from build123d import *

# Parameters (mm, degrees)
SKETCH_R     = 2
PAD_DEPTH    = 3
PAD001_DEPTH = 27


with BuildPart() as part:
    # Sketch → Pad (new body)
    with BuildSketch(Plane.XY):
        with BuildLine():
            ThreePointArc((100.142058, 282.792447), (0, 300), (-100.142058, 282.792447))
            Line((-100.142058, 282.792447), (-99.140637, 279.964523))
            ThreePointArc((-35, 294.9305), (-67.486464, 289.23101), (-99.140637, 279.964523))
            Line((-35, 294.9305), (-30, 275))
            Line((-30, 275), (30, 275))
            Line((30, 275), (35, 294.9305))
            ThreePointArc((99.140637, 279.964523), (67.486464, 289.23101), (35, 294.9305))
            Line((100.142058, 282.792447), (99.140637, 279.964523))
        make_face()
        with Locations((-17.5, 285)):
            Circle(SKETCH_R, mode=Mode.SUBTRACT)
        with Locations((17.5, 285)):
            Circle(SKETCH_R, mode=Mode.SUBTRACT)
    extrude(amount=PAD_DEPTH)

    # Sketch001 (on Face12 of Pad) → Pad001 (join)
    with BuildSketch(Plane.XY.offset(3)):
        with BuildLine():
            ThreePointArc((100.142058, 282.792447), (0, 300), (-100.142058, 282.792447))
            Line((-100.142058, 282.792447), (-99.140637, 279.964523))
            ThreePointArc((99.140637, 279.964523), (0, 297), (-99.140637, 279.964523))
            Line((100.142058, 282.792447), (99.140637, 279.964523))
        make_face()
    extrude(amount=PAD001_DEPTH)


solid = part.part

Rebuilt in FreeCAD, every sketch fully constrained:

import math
import FreeCAD as App
import Part
import Sketcher
Q = App.Units.Quantity

doc = App.newDocument("Part")
body = doc.addObject("PartDesign::Body", "Body")

sketch1 = body.newObject("Sketcher::SketchObject", "Sketch")
sketch1.AttachmentSupport = (doc.getObject("XY_Plane"), [""])
sketch1.MapMode = "FlatFace"
sketch1.addGeometry([
    Part.ArcOfCircle(Part.Circle(App.Vector(0, 0, 0), App.Vector(0, 0, 1), 300), math.radians(70), math.radians(110)),
    Part.LineSegment(App.Vector(-100.1, 282.8, 0), App.Vector(-99.1, 280, 0)),
    Part.ArcOfCircle(Part.Circle(App.Vector(0, 0, 0), App.Vector(0, 0, 1), 297), math.radians(96.77), math.radians(109.5)),
    Part.LineSegment(App.Vector(-35, 294.9, 0), App.Vector(-30, 275, 0)),
    Part.LineSegment(App.Vector(-30, 275, 0), App.Vector(30, 275, 0)),
    Part.LineSegment(App.Vector(30, 275, 0), App.Vector(35, 294.9, 0)),
    Part.ArcOfCircle(Part.Circle(App.Vector(0, 0, 0), App.Vector(0, 0, 1), 297), math.radians(70.5), math.radians(83.23)),
    Part.LineSegment(App.Vector(99.1, 280, 0), App.Vector(100.1, 282.8, 0)),
    Part.Circle(App.Vector(-17.5, 285, 0), App.Vector(0, 0, 1), 2),
    Part.Circle(App.Vector(17.5, 285, 0), App.Vector(0, 0, 1), 2),
], False)
sketch1.addConstraint([
    Sketcher.Constraint("Coincident", 0, 2, 1, 1),
    Sketcher.Constraint("Coincident", 1, 2, 2, 2),
    Sketcher.Constraint("Coincident", 2, 1, 3, 1),
    Sketcher.Constraint("Coincident", 3, 2, 4, 1),
    Sketcher.Constraint("Coincident", 4, 2, 5, 1),
    Sketcher.Constraint("Coincident", 5, 2, 6, 2),
    Sketcher.Constraint("Coincident", 6, 1, 7, 1),
    Sketcher.Constraint("Coincident", 7, 2, 0, 1),
    Sketcher.Constraint("Horizontal", 4),
    Sketcher.Constraint("Coincident", 0, 3, -1, 1),
    Sketcher.Constraint("Coincident", 2, 3, -1, 1),
    Sketcher.Constraint("Coincident", 6, 3, -1, 1),
    Sketcher.Constraint("Equal", 2, 6),
    Sketcher.Constraint("Equal", 8, 9),
    Sketcher.Constraint("Symmetric", 8, 3, 9, 3, -2),
    Sketcher.Constraint("Horizontal", 2, 1, 5, 2),
    Sketcher.Constraint("Horizontal", 1, 2, 6, 1),
    Sketcher.Constraint("Horizontal", 0, 2, 7, 2),
    Sketcher.Constraint("Equal", 3, 5),
    Sketcher.Constraint("Diameter", 8, 4.0),
    Sketcher.Constraint("DistanceX", 4, 1, 4, 2, 60.0),
    Sketcher.Constraint("Distance", 1, 3.0),
    Sketcher.Constraint("DistanceY", -1, 1, 8, 3, 285.0),
    Sketcher.Constraint("DistanceX", 2, 1, -1, 1, 35.0),
    Sketcher.Constraint("DistanceY", -1, 1, 3, 2, 275.0),
    Sketcher.Constraint("Angle", 1, Q("-70.499989 deg")),
    Sketcher.Constraint("DistanceX", 8, 3, 9, 3, 35.0),
    Sketcher.Constraint("Radius", 2, 296.999991),
    Sketcher.Constraint("DistanceX", -1, 1, 7, 2, 100.142058),
])
pad1 = body.newObject("PartDesign::Pad", "Pad")
pad1.Profile = sketch1
pad1.Length = 3

sketch2 = body.newObject("Sketcher::SketchObject", "Sketch001")
sketch2.AttachmentSupport = (doc.getObject("XY_Plane"), [""])
sketch2.MapMode = "FlatFace"
sketch2.AttachmentOffset = App.Placement(App.Vector(0, 0, 3), App.Rotation())
sketch2.addGeometry([
    Part.ArcOfCircle(Part.Circle(App.Vector(0, 0, 0), App.Vector(0, 0, 1), 300), math.radians(70), math.radians(110)),
    Part.LineSegment(App.Vector(-100.1, 282.8, 0), App.Vector(-99.1, 280, 0)),
    Part.ArcOfCircle(Part.Circle(App.Vector(0, 0, 0), App.Vector(0, 0, 1), 297), math.radians(71), math.radians(109)),
    Part.LineSegment(App.Vector(99.1, 280, 0), App.Vector(100.1, 282.8, 0)),
], False)
sketch2.addConstraint([
    Sketcher.Constraint("Coincident", 0, 2, 1, 1),
    Sketcher.Constraint("Coincident", 1, 2, 2, 2),
    Sketcher.Constraint("Coincident", 2, 1, 3, 1),
    Sketcher.Constraint("Coincident", 3, 2, 0, 1),
    Sketcher.Constraint("Coincident", 0, 3, -1, 1),
    Sketcher.Constraint("Coincident", 2, 3, -1, 1),
    Sketcher.Constraint("Horizontal", 1, 2, 2, 1),
    Sketcher.Constraint("Horizontal", 0, 2, 3, 2),
    Sketcher.Constraint("Radius", 2, 297.000001),
    Sketcher.Constraint("Distance", 1, 3.0),
    Sketcher.Constraint("Angle", 1, Q("-70.499989 deg")),
    Sketcher.Constraint("DistanceX", -1, 1, 3, 2, 100.142058),
])
pad2 = body.newObject("PartDesign::Pad", "Pad001")
pad2.Profile = sketch2
pad2.Length = 27

doc.recompute()
